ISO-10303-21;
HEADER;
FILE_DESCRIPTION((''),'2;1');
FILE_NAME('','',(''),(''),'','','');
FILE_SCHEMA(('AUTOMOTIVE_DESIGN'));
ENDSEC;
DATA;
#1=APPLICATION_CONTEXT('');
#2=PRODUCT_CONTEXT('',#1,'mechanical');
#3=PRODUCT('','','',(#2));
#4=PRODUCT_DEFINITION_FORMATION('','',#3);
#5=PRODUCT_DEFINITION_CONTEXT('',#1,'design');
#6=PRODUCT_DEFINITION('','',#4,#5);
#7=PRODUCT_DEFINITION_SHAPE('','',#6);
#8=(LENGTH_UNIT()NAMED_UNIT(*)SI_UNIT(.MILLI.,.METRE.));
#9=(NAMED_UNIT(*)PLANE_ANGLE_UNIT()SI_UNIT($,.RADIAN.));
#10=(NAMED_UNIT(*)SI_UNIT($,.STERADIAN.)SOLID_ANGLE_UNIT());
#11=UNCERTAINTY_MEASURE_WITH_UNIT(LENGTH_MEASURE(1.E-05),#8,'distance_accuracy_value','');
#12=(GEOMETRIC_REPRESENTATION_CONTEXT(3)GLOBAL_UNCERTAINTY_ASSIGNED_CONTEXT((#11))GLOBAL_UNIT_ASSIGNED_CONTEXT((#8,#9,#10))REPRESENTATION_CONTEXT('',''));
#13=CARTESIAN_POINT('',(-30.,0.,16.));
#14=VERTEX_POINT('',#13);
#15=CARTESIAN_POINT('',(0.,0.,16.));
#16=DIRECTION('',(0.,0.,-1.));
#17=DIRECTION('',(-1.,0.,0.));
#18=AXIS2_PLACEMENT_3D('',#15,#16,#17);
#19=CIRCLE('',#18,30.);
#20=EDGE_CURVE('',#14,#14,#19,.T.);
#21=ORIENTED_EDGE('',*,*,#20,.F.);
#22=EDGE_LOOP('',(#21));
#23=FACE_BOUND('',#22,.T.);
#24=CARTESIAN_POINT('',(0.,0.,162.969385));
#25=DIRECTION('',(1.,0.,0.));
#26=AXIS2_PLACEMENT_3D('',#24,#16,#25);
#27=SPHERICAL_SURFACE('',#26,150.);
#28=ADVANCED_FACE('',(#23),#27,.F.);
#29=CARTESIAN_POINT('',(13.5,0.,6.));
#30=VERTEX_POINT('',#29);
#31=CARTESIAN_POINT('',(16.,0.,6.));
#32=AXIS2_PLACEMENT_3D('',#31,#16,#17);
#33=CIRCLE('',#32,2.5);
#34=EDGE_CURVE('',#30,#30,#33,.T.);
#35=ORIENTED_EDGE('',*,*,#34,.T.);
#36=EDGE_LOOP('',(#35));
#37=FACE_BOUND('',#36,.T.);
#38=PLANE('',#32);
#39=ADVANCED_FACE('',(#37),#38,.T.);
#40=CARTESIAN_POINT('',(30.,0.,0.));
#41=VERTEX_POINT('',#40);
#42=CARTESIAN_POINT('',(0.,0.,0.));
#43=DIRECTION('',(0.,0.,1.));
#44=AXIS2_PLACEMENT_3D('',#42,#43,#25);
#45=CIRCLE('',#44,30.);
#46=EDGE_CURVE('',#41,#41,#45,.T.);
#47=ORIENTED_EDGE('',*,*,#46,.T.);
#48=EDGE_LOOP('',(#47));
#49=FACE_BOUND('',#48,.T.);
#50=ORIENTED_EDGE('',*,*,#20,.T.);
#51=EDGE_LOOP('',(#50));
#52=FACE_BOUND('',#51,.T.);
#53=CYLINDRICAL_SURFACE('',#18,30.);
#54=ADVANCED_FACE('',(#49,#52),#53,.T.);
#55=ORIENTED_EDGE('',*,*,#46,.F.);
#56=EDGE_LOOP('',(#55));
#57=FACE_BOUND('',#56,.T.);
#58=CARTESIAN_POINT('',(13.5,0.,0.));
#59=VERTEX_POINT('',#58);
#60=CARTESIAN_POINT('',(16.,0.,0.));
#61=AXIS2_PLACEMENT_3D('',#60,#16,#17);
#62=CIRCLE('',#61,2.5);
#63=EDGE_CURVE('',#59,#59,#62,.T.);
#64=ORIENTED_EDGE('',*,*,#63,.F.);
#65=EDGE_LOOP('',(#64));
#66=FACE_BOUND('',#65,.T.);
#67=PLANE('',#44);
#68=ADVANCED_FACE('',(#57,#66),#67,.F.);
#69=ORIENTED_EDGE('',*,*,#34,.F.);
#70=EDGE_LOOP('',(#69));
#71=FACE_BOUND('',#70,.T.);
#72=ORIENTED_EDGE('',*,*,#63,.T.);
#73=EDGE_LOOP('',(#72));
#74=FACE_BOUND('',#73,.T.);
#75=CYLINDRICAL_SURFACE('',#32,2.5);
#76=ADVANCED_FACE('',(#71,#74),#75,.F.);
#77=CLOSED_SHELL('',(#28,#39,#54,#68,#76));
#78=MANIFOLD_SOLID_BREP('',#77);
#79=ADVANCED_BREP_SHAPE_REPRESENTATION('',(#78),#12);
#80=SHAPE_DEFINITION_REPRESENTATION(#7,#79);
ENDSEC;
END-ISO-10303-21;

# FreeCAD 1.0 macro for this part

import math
import FreeCAD as App
import Part
import Sketcher

doc = App.newDocument("Part")
body = doc.addObject("PartDesign::Body", "Body")

# Sketch on XY plane
sketch1 = doc.addObject("Sketcher::SketchObject", "Sketch")
body.addObject(sketch1)
sketch1.AttachmentSupport = (doc.XY_Plane, [""])
sketch1.MapMode = "FlatFace"
sketch1.addGeometry(Part.Circle(App.Vector(0, 0, 0), App.Vector(0, 0, 1), 30), False)
sketch1.addConstraint([
    Sketcher.Constraint("Coincident", 0, 3, -1, 1),
    Sketcher.Constraint("Diameter", 0, 60.0),
])
pad1 = doc.addObject("PartDesign::Pad", "Pad")
body.addObject(pad1)
pad1.Profile = sketch1
pad1.Length = 16

# Sketch on XZ plane
sketch2 = doc.addObject("Sketcher::SketchObject", "Sketch001")
body.addObject(sketch2)
sketch2.AttachmentSupport = (doc.XZ_Plane, [""])
sketch2.MapMode = "FlatFace"
sketch2.addGeometry([
    Part.LineSegment(App.Vector(0, 16, 0), App.Vector(30, 16, 0)),
    Part.ArcOfCircle(Part.Circle(App.Vector(0, 163, 0), App.Vector(0, 0, 1), 150), math.radians(-90), math.radians(-78.46)),
    Part.LineSegment(App.Vector(0, 13, 0), App.Vector(0, 16, 0)),
], False)
sketch2.addConstraint([
    Sketcher.Constraint("Coincident", 0, 2, 1, 2),
    Sketcher.Constraint("Coincident", 1, 1, 2, 1),
    Sketcher.Constraint("Coincident", 2, 2, 0, 1),
    Sketcher.Constraint("Horizontal", 0),
    Sketcher.Constraint("Vertical", 2),
    Sketcher.Constraint("PointOnObject", 1, 3, -2),
    Sketcher.Constraint("PointOnObject", 1, 1, -2),
    Sketcher.Constraint("Radius", 1, 150.0),
    Sketcher.Constraint("DistanceX", 0, 1, 0, 2, 30.0),
    Sketcher.Constraint("DistanceY", -1, 1, 0, 2, 16.0),
])
groove = doc.addObject("PartDesign::Groove", "Groove")
body.addObject(groove)
groove.Profile = sketch2
groove.ReferenceAxis = (sketch2, ["V_Axis"])
groove.Angle = 360

# Sketch on XY plane
sketch3 = doc.addObject("Sketcher::SketchObject", "Sketch002")
body.addObject(sketch3)
sketch3.AttachmentSupport = (doc.XY_Plane, [""])
sketch3.MapMode = "FlatFace"
sketch3.addGeometry(Part.Circle(App.Vector(16, 0, 0), App.Vector(0, 0, 1), 2.5), False)
sketch3.addConstraint([
    Sketcher.Constraint("PointOnObject", 0, 3, -1),
    Sketcher.Constraint("Diameter", 0, 5.0),
    Sketcher.Constraint("DistanceX", -1, 1, 0, 3, 16.0),
])
pocket1 = doc.addObject("PartDesign::Pocket", "Pocket")
body.addObject(pocket1)
pocket1.Profile = sketch3
pocket1.Length = 6
pocket1.Reversed = True

doc.recompute()
